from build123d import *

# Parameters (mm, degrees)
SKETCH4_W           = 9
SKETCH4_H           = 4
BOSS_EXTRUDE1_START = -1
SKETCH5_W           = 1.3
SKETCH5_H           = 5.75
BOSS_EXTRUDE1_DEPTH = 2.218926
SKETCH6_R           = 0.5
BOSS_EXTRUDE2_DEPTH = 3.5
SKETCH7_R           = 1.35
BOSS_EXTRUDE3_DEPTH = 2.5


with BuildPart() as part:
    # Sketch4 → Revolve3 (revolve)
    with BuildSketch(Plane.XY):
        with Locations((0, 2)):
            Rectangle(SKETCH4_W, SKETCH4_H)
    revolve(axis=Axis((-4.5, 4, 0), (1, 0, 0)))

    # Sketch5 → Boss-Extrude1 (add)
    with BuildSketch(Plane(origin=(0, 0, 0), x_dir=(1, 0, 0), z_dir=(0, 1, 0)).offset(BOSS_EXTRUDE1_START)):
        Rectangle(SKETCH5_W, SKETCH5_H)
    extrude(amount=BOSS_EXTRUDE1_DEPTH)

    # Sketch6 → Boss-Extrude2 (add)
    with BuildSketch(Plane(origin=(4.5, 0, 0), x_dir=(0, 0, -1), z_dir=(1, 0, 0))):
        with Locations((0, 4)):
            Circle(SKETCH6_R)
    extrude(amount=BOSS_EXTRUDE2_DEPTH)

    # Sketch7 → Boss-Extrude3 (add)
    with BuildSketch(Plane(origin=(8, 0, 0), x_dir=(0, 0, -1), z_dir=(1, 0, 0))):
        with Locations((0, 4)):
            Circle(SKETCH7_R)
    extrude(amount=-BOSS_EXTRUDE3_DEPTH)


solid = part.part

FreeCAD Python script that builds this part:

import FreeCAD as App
import Part
import Sketcher
from FreeCAD import Vector

doc = App.newDocument("Part")
body = doc.addObject("PartDesign::Body", "Body")

sketch1 = body.newObject("Sketcher::SketchObject", "Sketch")
sketch1.AttachmentSupport = (doc.getObject("XY_Plane"), [""])
sketch1.MapMode = "FlatFace"
sketch1.addGeometry([
    Part.LineSegment(Vector(-4.5, 4, 0), Vector(-4.5, 0, 0)),
    Part.LineSegment(Vector(-4.5, 0, 0), Vector(4.5, 0, 0)),
    Part.LineSegment(Vector(4.5, 0, 0), Vector(4.5, 4, 0)),
    Part.LineSegment(Vector(4.5, 4, 0), Vector(-4.5, 4, 0)),
], False)
sketch1.addGeometry(Part.LineSegment(Vector(-4.5, 4, 0), Vector(4.5, 4, 0)), True)
sketch1.addConstraint([
    Sketcher.Constraint("Coincident", 0, 2, 1, 1),
    Sketcher.Constraint("Coincident", 1, 2, 2, 1),
    Sketcher.Constraint("Coincident", 2, 2, 3, 1),
    Sketcher.Constraint("Coincident", 3, 2, 0, 1),
    Sketcher.Constraint("Vertical", 0),
    Sketcher.Constraint("Horizontal", 1),
    Sketcher.Constraint("Vertical", 2),
    Sketcher.Constraint("Horizontal", 3),
    Sketcher.Constraint("Horizontal", 4),
    Sketcher.Constraint("Coincident", 4, 1, 3, 2),
    Sketcher.Constraint("Symmetric", 0, 2, 1, 2, -1, 1),
    Sketcher.Constraint("Vertical", 1, 2, 4, 2),
    Sketcher.Constraint("DistanceX", 1, 1, 1, 2, 9.0),
    Sketcher.Constraint("DistanceY", 0, 2, 0, 1, 4.0),
])
revolution = body.newObject("PartDesign::Revolution", "Revolution")
revolution.Profile = sketch1
revolution.ReferenceAxis = (sketch1, ["Axis0"])
revolution.Angle = 360

sketch2 = body.newObject("Sketcher::SketchObject", "Sketch001")
sketch2.AttachmentSupport = (doc.getObject("XZ_Plane"), [""])
sketch2.MapMode = "FlatFace"
sketch2.AttachmentOffset = App.Placement(Vector(0, 0, 1), App.Rotation())
sketch2.addGeometry([
    Part.LineSegment(Vector(-0.7, -2.9, 0), Vector(-0.7, 2.9, 0)),
    Part.LineSegment(Vector(-0.7, 2.9, 0), Vector(0.7, 2.9, 0)),
    Part.LineSegment(Vector(0.7, 2.9, 0), Vector(0.7, -2.9, 0)),
    Part.LineSegment(Vector(0.7, -2.9, 0), Vector(-0.7, -2.9, 0)),
], False)
sketch2.addConstraint([
    Sketcher.Constraint("Coincident", 0, 2, 1, 1),
    Sketcher.Constraint("Coincident", 1, 2, 2, 1),
    Sketcher.Constraint("Coincident", 2, 2, 3, 1),
    Sketcher.Constraint("Coincident", 3, 2, 0, 1),
    Sketcher.Constraint("Vertical", 0),
    Sketcher.Constraint("Horizontal", 1),
    Sketcher.Constraint("Vertical", 2),
    Sketcher.Constraint("Horizontal", 3),
    Sketcher.Constraint("Symmetric", 0, 2, 2, 2, -1, 1),
    Sketcher.Constraint("DistanceX", 1, 1, 1, 2, 1.3),
    Sketcher.Constraint("DistanceY", 0, 1, 0, 2, 5.75),
])
pad1 = body.newObject("PartDesign::Pad", "Pad")
pad1.Profile = sketch2
pad1.Length = 2.218926
pad1.Reversed = True

sketch3 = body.newObject("Sketcher::SketchObject", "Sketch002")
sketch3.AttachmentSupport = (doc.getObject("YZ_Plane"), [""])
sketch3.MapMode = "FlatFace"
sketch3.AttachmentOffset = App.Placement(Vector(0, 0, 4.5), App.Rotation())
sketch3.addGeometry(Part.Circle(Vector(4, 0, 0), Vector(0, 0, 1), 0.5), False)
sketch3.addConstraint([
    Sketcher.Constraint("PointOnObject", 0, 3, -1),
    Sketcher.Constraint("Diameter", 0, 1.0),
    Sketcher.Constraint("DistanceX", -1, 1, 0, 3, 4.0),
])
pad2 = body.newObject("PartDesign::Pad", "Pad001")
pad2.Profile = sketch3
pad2.Length = 3.5

sketch4 = body.newObject("Sketcher::SketchObject", "Sketch003")
sketch4.AttachmentSupport = (doc.getObject("YZ_Plane"), [""])
sketch4.MapMode = "FlatFace"
sketch4.AttachmentOffset = App.Placement(Vector(0, 0, 8), App.Rotation())
sketch4.addGeometry(Part.Circle(Vector(4, 0, 0), Vector(0, 0, 1), 1.4), False)
sketch4.addConstraint([
    Sketcher.Constraint("PointOnObject", 0, 3, -1),
    Sketcher.Constraint("Diameter", 0, 2.7),
    Sketcher.Constraint("DistanceX", -1, 1, 0, 3, 4.0),
])
pad3 = body.newObject("PartDesign::Pad", "Pad002")
pad3.Profile = sketch4
pad3.Length = 2.5
pad3.Reversed = True

doc.recompute()
